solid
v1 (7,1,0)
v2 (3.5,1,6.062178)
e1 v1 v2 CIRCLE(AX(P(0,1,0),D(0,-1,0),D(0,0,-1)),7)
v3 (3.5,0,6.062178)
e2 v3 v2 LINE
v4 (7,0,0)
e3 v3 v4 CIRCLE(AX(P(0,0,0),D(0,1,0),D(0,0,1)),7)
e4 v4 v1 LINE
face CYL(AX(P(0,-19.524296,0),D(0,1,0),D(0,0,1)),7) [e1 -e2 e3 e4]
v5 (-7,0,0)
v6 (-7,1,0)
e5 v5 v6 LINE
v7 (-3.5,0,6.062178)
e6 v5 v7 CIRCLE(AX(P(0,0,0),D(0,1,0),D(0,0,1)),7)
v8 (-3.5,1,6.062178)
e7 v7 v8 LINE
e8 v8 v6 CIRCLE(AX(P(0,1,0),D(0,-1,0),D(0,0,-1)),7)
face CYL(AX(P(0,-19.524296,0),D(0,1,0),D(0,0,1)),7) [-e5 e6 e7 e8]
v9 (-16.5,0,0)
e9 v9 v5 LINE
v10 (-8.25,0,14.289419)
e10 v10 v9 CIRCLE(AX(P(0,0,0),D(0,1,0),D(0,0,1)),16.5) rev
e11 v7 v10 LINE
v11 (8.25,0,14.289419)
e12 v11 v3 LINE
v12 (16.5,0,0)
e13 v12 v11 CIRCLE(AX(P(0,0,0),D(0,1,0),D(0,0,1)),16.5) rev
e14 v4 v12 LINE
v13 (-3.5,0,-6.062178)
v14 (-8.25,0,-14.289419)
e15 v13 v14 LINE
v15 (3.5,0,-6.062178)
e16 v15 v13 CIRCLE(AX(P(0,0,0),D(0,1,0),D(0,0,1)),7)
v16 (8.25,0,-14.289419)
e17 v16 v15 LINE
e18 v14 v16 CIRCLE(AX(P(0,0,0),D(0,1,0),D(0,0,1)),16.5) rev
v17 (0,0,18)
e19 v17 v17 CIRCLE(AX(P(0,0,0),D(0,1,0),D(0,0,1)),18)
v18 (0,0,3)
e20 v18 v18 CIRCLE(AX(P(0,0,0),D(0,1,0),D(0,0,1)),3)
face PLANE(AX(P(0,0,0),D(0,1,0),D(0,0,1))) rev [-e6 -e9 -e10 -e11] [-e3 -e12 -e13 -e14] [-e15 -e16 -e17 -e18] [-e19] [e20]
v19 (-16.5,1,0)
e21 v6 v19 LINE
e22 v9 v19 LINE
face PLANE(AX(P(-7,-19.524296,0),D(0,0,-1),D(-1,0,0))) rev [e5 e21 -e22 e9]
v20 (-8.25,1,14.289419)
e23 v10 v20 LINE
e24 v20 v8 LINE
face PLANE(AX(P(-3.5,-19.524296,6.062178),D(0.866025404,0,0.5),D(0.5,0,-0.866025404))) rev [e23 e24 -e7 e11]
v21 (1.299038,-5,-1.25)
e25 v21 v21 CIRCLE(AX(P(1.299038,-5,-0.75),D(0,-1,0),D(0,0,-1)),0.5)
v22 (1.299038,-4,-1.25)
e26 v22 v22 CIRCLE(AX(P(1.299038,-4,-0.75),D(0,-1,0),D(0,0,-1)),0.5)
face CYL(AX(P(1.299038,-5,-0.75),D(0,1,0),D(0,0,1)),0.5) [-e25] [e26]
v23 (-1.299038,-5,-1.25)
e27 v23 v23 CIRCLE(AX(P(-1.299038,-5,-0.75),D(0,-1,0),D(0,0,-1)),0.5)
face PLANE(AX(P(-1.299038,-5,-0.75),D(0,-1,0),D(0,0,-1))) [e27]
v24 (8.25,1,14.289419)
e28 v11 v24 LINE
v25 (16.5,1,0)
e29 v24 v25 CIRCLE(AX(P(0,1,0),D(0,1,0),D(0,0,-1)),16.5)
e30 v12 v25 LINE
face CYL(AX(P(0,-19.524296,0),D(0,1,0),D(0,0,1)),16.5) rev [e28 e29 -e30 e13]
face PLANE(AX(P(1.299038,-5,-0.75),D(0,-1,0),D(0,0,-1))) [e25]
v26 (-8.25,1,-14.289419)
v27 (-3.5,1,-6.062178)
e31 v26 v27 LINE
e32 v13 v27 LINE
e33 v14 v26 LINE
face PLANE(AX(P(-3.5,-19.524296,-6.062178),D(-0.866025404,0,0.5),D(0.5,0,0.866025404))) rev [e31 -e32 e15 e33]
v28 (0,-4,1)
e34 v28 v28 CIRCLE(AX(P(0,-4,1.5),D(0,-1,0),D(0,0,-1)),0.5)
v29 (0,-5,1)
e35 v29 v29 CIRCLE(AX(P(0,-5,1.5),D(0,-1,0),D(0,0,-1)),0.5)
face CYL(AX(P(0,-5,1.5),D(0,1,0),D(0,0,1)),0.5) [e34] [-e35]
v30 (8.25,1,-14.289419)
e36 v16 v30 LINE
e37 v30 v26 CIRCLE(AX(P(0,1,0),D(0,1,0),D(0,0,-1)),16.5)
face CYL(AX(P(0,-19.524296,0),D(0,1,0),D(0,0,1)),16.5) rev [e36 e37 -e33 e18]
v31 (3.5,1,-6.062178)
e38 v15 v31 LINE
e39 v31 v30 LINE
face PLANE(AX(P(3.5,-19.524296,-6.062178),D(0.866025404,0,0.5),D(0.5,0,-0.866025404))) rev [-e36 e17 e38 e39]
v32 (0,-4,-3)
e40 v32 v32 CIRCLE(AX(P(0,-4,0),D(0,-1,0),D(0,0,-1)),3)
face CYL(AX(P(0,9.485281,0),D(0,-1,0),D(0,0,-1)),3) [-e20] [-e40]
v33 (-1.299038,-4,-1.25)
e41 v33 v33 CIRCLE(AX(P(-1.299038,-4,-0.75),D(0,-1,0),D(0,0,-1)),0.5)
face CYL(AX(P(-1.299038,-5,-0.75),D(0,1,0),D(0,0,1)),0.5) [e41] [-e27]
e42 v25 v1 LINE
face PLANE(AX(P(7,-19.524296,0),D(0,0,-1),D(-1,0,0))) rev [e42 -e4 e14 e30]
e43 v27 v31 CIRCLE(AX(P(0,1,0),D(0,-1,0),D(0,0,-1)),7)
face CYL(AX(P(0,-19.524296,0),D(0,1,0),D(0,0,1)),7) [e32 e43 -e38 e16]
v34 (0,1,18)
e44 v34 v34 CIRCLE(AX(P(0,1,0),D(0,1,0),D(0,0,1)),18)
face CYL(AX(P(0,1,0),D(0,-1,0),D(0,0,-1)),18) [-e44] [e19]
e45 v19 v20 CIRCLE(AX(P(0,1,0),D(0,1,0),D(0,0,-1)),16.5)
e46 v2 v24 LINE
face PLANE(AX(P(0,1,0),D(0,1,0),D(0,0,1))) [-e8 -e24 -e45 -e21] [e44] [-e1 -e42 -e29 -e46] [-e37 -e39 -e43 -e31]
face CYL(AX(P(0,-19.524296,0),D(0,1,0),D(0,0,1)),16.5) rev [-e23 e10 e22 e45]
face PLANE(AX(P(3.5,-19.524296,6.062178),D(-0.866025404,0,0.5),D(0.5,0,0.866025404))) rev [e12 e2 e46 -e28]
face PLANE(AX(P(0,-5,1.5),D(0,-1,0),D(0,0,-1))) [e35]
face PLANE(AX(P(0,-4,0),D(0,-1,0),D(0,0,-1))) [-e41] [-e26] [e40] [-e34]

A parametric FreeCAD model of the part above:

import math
import FreeCAD as App
import Part
import Sketcher
Q = App.Units.Quantity

doc = App.newDocument("Part")
params = doc.addObject("Spreadsheet::Sheet", "Params")
for row, (alias, value) in enumerate([
    ("sketch1_diameter", "36 mm"),
    ("pad1_length", "1 mm"),
    ("sketch2_diameter", "1 mm"),
    ("sketch2_radius", "7 mm"),
    ("sketch2_radius2", "16.5 mm"),
    ("pocket1_length", "1 mm"),
    ("sketch3_diameter", "6 mm"),
    ("pad2_length", "4 mm"),
    ("pad2_length2", "1 mm"),
    ("sketch4_diameter", "1 mm"),
    ("pad3_length", "1 mm"),
], start=1):
    params.set(f"A{row}", alias)
    params.set(f"B{row}", "=" + value)
    params.setAlias(f"B{row}", alias)

body = doc.addObject("PartDesign::Body", "Body")

# Sketch on XZ plane
sketch1 = body.newObject("Sketcher::SketchObject", "Sketch")
sketch1.AttachmentSupport = (doc.getObject("XZ_Plane"), [""])
sketch1.MapMode = "FlatFace"
sketch1.addGeometry(Part.Circle(App.Vector(0, 0, 0), App.Vector(0, 0, 1), 18), False)
sketch1.addConstraint(Sketcher.Constraint("Coincident", 0, 3, -1, 1))
sketch1.addConstraint(Sketcher.Constraint("Diameter", 0, 36.0))
sketch1.setExpression("Constraints[1]", "Params.sketch1_diameter")
pad1 = body.newObject("PartDesign::Pad", "Pad")
pad1.Profile = sketch1
pad1.setExpression("Length", "Params.pad1_length")
pad1.Reversed = True

# Sketch on XZ plane
sketch2 = body.newObject("Sketcher::SketchObject", "Sketch001")
sketch2.AttachmentSupport = (doc.getObject("XZ_Plane"), [""])
sketch2.MapMode = "FlatFace"
sketch2.AttachmentOffset = App.Placement(App.Vector(0, 0, -1), App.Rotation())
sketch2.addGeometry(Part.Circle(App.Vector(1.3, -0.8, 0), App.Vector(0, 0, 1), 0.5), False)
sketch2.addGeometry(Part.Circle(App.Vector(0, 1.5, 0), App.Vector(0, 0, 1), 0.5), False)
sketch2.addGeometry(Part.Circle(App.Vector(-1.3, -0.8, 0), App.Vector(0, 0, 1), 0.5), False)
sketch2.addGeometry(Part.LineSegment(App.Vector(-8.2, -14.3, 0), App.Vector(-3.5, -6.1, 0)), False)
sketch2.addGeometry(Part.ArcOfCircle(Part.Circle(App.Vector(0, 0, 0), App.Vector(0, 0, 1), 7), math.radians(-120), math.radians(-60)), False)
sketch2.addGeometry(Part.LineSegment(App.Vector(3.5, -6.1, 0), App.Vector(8.2, -14.3, 0)), False)
sketch2.addGeometry(Part.ArcOfCircle(Part.Circle(App.Vector(0, 0, 0), App.Vector(0, 0, 1), 16.5), math.radians(-120), math.radians(-60)), False)
sketch2.addGeometry(Part.LineSegment(App.Vector(16.5, 0, 0), App.Vector(7, 0, 0)), False)
sketch2.addGeometry(Part.ArcOfCircle(Part.Circle(App.Vector(0, 0, 0), App.Vector(0, 0, 1), 7), math.radians(0), math.radians(60)), False)
sketch2.addGeometry(Part.LineSegment(App.Vector(3.5, 6.1, 0), App.Vector(8.2, 14.3, 0)), False)
sketch2.addGeometry(Part.ArcOfCircle(Part.Circle(App.Vector(0, 0, 0), App.Vector(0, 0, 1), 16.5), math.radians(0), math.radians(60)), False)
sketch2.addGeometry(Part.LineSegment(App.Vector(-8.2, 14.3, 0), App.Vector(-3.5, 6.1, 0)), False)
sketch2.addGeometry(Part.ArcOfCircle(Part.Circle(App.Vector(0, 0, 0), App.Vector(0, 0, 1), 7), math.radians(120), math.radians(180)), False)
sketch2.addGeometry(Part.LineSegment(App.Vector(-7, 0, 0), App.Vector(-16.5, 0, 0)), False)
sketch2.addGeometry(Part.ArcOfCircle(Part.Circle(App.Vector(0, 0, 0), App.Vector(0, 0, 1), 16.5), math.radians(120), math.radians(180)), False)
sketch2.addConstraint(Sketcher.Constraint("Coincident", 3, 2, 4, 1))
sketch2.addConstraint(Sketcher.Constraint("Coincident", 4, 2, 5, 1))
sketch2.addConstraint(Sketcher.Constraint("Coincident", 5, 2, 6, 2))
sketch2.addConstraint(Sketcher.Constraint("Coincident", 6, 1, 3, 1))
sketch2.addConstraint(Sketcher.Constraint("Coincident", 7, 2, 8, 1))
sketch2.addConstraint(Sketcher.Constraint("Coincident", 8, 2, 9, 1))
sketch2.addConstraint(Sketcher.Constraint("Coincident", 9, 2, 10, 2))
sketch2.addConstraint(Sketcher.Constraint("Coincident", 10, 1, 7, 1))
sketch2.addConstraint(Sketcher.Constraint("Coincident", 11, 2, 12, 1))
sketch2.addConstraint(Sketcher.Constraint("Coincident", 12, 2, 13, 1))
sketch2.addConstraint(Sketcher.Constraint("Coincident", 13, 2, 14, 2))
sketch2.addConstraint(Sketcher.Constraint("Coincident", 14, 1, 11, 1))
sketch2.addConstraint(Sketcher.Constraint("Horizontal", 7))
sketch2.addConstraint(Sketcher.Constraint("Horizontal", 13))
sketch2.addConstraint(Sketcher.Constraint("Coincident", 4, 3, -1, 1))
sketch2.addConstraint(Sketcher.Constraint("Coincident", 6, 3, -1, 1))
sketch2.addConstraint(Sketcher.Constraint("Coincident", 8, 3, -1, 1))
sketch2.addConstraint(Sketcher.Constraint("Coincident", 10, 3, -1, 1))
sketch2.addConstraint(Sketcher.Constraint("Coincident", 12, 3, -1, 1))
sketch2.addConstraint(Sketcher.Constraint("Coincident", 14, 3, -1, 1))
sketch2.addConstraint(Sketcher.Constraint("Equal", 0, 1))
sketch2.addConstraint(Sketcher.Constraint("Equal", 1, 2))
sketch2.addConstraint(Sketcher.Constraint("Equal", 4, 8))
sketch2.addConstraint(Sketcher.Constraint("Equal", 6, 10))
sketch2.addConstraint(Sketcher.Constraint("Equal", 8, 12))
sketch2.addConstraint(Sketcher.Constraint("Equal", 10, 14))
sketch2.addConstraint(Sketcher.Constraint("Symmetric", 0, 3, 2, 3, -2))
sketch2.addConstraint(Sketcher.Constraint("PointOnObject", 1, 3, -2))
sketch2.addConstraint(Sketcher.Constraint("PointOnObject", 7, 2, -1))
sketch2.addConstraint(Sketcher.Constraint("PointOnObject", 12, 2, -1))
sketch2.addConstraint(Sketcher.Constraint("Parallel", 3, 9))
sketch2.addConstraint(Sketcher.Constraint("Parallel", 5, 11))
sketch2.addConstraint(Sketcher.Constraint("Horizontal", 3, 2, 4, 2))
sketch2.addConstraint(Sketcher.Constraint("Horizontal", 5, 2, 6, 1))
sketch2.addConstraint(Sketcher.Constraint("Horizontal", 8, 2, 11, 2))
sketch2.addConstraint(Sketcher.Constraint("Vertical", 4, 2, 8, 2))
sketch2.addConstraint(Sketcher.Constraint("Diameter", 0, 1.0))
sketch2.addConstraint(Sketcher.Constraint("Radius", 4, 7.0))
sketch2.addConstraint(Sketcher.Constraint("Radius", 6, 16.5))
sketch2.addConstraint(Sketcher.Constraint("Angle", 3, Q("60 deg")))
sketch2.addConstraint(Sketcher.Constraint("DistanceX", 8, 2, 10, 1, 13.0))
sketch2.addConstraint(Sketcher.Constraint("DistanceY", -1, 1, 1, 3, 1.5))
sketch2.addConstraint(Sketcher.Constraint("DistanceY", 0, 3, -1, 1, 0.75))
sketch2.addConstraint(Sketcher.Constraint("DistanceX", -1, 1, 0, 3, 1.299038))
sketch2.setExpression("Constraints[36]", "Params.sketch2_diameter")
sketch2.setExpression("Constraints[37]", "Params.sketch2_radius")
sketch2.setExpression("Constraints[38]", "Params.sketch2_radius2")
pocket1 = body.newObject("PartDesign::Pocket", "Pocket")
pocket1.Profile = sketch2
pocket1.setExpression("Length", "Params.pocket1_length")
pocket1.Reversed = True

# Sketch on XZ plane
sketch3 = body.newObject("Sketcher::SketchObject", "Sketch002")
sketch3.AttachmentSupport = (doc.getObject("XZ_Plane"), [""])
sketch3.MapMode = "FlatFace"
sketch3.addGeometry(Part.Circle(App.Vector(0, 0, 0), App.Vector(0, 0, 1), 3), False)
sketch3.addConstraint(Sketcher.Constraint("Coincident", 0, 3, -1, 1))
sketch3.addConstraint(Sketcher.Constraint("Diameter", 0, 6.0))
sketch3.setExpression("Constraints[1]", "Params.sketch3_diameter")
pad2 = body.newObject("PartDesign::Pad", "Pad001")
pad2.Profile = sketch3
pad2.Type = "TwoLengths"
pad2.setExpression("Length", "Params.pad2_length")
pad2.setExpression("Length2", "Params.pad2_length2")

# Sketch on XZ plane
sketch4 = body.newObject("Sketcher::SketchObject", "Sketch003")
sketch4.AttachmentSupport = (doc.getObject("XZ_Plane"), [""])
sketch4.MapMode = "FlatFace"
sketch4.AttachmentOffset = App.Placement(App.Vector(0, 0, 4), App.Rotation())
sketch4.addGeometry(Part.Circle(App.Vector(0, 1.5, 0), App.Vector(0, 0, 1), 0.5), False)
sketch4.addGeometry(Part.Circle(App.Vector(-1.3, -0.8, 0), App.Vector(0, 0, 1), 0.5), False)
sketch4.addGeometry(Part.Circle(App.Vector(1.3, -0.8, 0), App.Vector(0, 0, 1), 0.5), False)
sketch4.addConstraint(Sketcher.Constraint("Equal", 0, 1))
sketch4.addConstraint(Sketcher.Constraint("Equal", 1, 2))
sketch4.addConstraint(Sketcher.Constraint("Symmetric", 1, 3, 2, 3, -2))
sketch4.addConstraint(Sketcher.Constraint("PointOnObject", 0, 3, -2))
sketch4.addConstraint(Sketcher.Constraint("Diameter", 0, 1.0))
sketch4.addConstraint(Sketcher.Constraint("DistanceY", -1, 1, 0, 3, 1.5))
sketch4.addConstraint(Sketcher.Constraint("DistanceY", 1, 3, -1, 1, 0.75))
sketch4.addConstraint(Sketcher.Constraint("DistanceX", 1, 3, -1, 1, 1.299038))
sketch4.setExpression("Constraints[4]", "Params.sketch4_diameter")
pad3 = body.newObject("PartDesign::Pad", "Pad002")
pad3.Profile = sketch4
pad3.setExpression("Length", "Params.pad3_length")

doc.recompute()
